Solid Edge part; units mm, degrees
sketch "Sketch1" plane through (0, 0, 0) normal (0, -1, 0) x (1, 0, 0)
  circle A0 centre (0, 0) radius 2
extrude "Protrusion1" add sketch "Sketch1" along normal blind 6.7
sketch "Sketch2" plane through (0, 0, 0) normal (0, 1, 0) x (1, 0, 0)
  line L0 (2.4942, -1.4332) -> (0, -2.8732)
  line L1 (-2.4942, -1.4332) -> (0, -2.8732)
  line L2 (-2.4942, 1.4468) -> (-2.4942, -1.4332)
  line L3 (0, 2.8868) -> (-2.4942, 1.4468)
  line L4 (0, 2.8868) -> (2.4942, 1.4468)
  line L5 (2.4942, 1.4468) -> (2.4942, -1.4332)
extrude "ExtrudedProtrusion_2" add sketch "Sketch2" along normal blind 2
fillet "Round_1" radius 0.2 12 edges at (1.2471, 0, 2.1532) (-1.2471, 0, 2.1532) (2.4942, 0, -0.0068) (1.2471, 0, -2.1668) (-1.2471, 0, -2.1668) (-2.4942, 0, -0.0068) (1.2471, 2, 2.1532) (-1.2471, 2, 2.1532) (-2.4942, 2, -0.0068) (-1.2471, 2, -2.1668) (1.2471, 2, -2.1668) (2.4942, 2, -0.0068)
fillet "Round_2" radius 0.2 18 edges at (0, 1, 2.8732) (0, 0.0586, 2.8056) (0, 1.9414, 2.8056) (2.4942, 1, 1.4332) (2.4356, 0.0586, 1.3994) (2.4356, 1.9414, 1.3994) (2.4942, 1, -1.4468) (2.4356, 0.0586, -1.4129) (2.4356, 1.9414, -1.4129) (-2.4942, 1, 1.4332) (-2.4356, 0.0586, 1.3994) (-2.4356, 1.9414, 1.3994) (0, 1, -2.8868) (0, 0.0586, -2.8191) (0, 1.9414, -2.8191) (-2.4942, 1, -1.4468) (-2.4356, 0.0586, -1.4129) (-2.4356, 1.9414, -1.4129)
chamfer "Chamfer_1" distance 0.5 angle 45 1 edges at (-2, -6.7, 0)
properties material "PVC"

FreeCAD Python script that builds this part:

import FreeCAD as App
import Part
import Sketcher
Q = App.Units.Quantity


def edges_at(feature, points):
    """Names of the edges that pass closest to the given points."""
    edges = feature.Shape.Edges
    near = lambda p: min(range(len(edges)), key=lambda i: edges[i].distToShape(Part.Vertex(*p))[0])
    return sorted({f"Edge{near(p) + 1}" for p in points})

doc = App.newDocument("Part")
body = doc.addObject("PartDesign::Body", "Body")

# Sketch on XZ plane
sketch1 = doc.addObject("Sketcher::SketchObject", "Sketch")
body.addObject(sketch1)
sketch1.AttachmentSupport = (doc.XZ_Plane, [""])
sketch1.MapMode = "FlatFace"
sketch1.addGeometry(Part.Circle(App.Vector(0, 0, 0), App.Vector(0, 0, 1), 2), False)
sketch1.addConstraint([
    Sketcher.Constraint("Coincident", 0, 3, -1, 1),
    Sketcher.Constraint("Diameter", 0, 4.0),
])
pad1 = doc.addObject("PartDesign::Pad", "Pad")
body.addObject(pad1)
pad1.Profile = sketch1
pad1.Length = 6.7

# Sketch on XZ plane
sketch2 = doc.addObject("Sketcher::SketchObject", "Sketch001")
body.addObject(sketch2)
sketch2.AttachmentSupport = (doc.XZ_Plane, [""])
sketch2.MapMode = "FlatFace"
sketch2.addGeometry([
    Part.LineSegment(App.Vector(0, 2.8732, 0), App.Vector(2.4942, 1.4332, 0)),  # 0
    Part.LineSegment(App.Vector(2.4942, 1.4332, 0), App.Vector(2.4942, -1.4468, 0)),  # 1
    Part.LineSegment(App.Vector(2.4942, -1.4468, 0), App.Vector(0, -2.8868, 0)),  # 2
    Part.LineSegment(App.Vector(0, -2.8868, 0), App.Vector(-2.4942, -1.4468, 0)),  # 3
    Part.LineSegment(App.Vector(-2.4942, -1.4468, 0), App.Vector(-2.4942, 1.4332, 0)),  # 4
    Part.LineSegment(App.Vector(-2.4942, 1.4332, 0), App.Vector(0, 2.8732, 0)),  # 5
], False)
sketch2.addConstraint([
    Sketcher.Constraint("Coincident", 0, 2, 1, 1),
    Sketcher.Constraint("Coincident", 1, 2, 2, 1),
    Sketcher.Constraint("Coincident", 2, 2, 3, 1),
    Sketcher.Constraint("Coincident", 3, 2, 4, 1),
    Sketcher.Constraint("Coincident", 4, 2, 5, 1),
    Sketcher.Constraint("Coincident", 5, 2, 0, 1),
    Sketcher.Constraint("Vertical", 1),
    Sketcher.Constraint("Vertical", 4),
    Sketcher.Constraint("Symmetric", 1, 2, 3, 2, -2),
    Sketcher.Constraint("PointOnObject", 2, 2, -2),
    Sketcher.Constraint("PointOnObject", 5, 2, -2),
    Sketcher.Constraint("Parallel", 0, 3),
    Sketcher.Constraint("Parallel", 2, 5),
    Sketcher.Constraint("Angle", 0, Q("-29.9995 deg")),
    Sketcher.Constraint("DistanceY", 1, 2, 1, 1, 2.88),
    Sketcher.Constraint("Distance", 0, 2.88),
    Sketcher.Constraint("DistanceY", -1, 1, 0, 2, 1.4332),
])
pad2 = doc.addObject("PartDesign::Pad", "Pad001")
body.addObject(pad2)
pad2.Profile = sketch2
pad2.Length = 2
pad2.Reversed = True
doc.recompute()

fillet = doc.addObject("PartDesign::Fillet", "Fillet")
body.addObject(fillet)
fillet.Base = (pad2, edges_at(pad2, [
    (1.247, 0, 2.153),
    (-1.247, 0, 2.153),
    (2.494, 0, -0.007),
    (1.247, 0, -2.167),
    (-1.247, 0, -2.167),
    (-2.494, 0, -0.007),
    (1.247, 2, 2.153),
    (-1.247, 2, 2.153),
    (-2.494, 2, -0.007),
    (-1.247, 2, -2.167),
    (1.247, 2, -2.167),
    (2.494, 2, -0.007),
]))
fillet.Radius = 0.2
doc.recompute()

fillet2 = doc.addObject("PartDesign::Fillet", "Fillet001")
body.addObject(fillet2)
fillet2.Base = (fillet, edges_at(fillet, [
    (0, 1, 2.873),
    (0, 0.059, 2.806),
    (0, 1.941, 2.806),
    (2.494, 1, 1.433),
    (2.436, 0.059, 1.399),
    (2.436, 1.941, 1.399),
    (2.494, 1, -1.447),
    (2.436, 0.059, -1.413),
    (2.436, 1.941, -1.413),
    (-2.494, 1, 1.433),
    (-2.436, 0.059, 1.399),
    (-2.436, 1.941, 1.399),
    (0, 1, -2.887),
    (0, 0.059, -2.819),
    (0, 1.941, -2.819),
    (-2.494, 1, -1.447),
    (-2.436, 0.059, -1.413),
    (-2.436, 1.941, -1.413),
]))
fillet2.Radius = 0.2
doc.recompute()

chamfer = doc.addObject("PartDesign::Chamfer", "Chamfer")
body.addObject(chamfer)
chamfer.Base = (fillet2, edges_at(fillet2, [(-2, -6.7, 0)]))
chamfer.Size = 0.5

doc.recompute()
